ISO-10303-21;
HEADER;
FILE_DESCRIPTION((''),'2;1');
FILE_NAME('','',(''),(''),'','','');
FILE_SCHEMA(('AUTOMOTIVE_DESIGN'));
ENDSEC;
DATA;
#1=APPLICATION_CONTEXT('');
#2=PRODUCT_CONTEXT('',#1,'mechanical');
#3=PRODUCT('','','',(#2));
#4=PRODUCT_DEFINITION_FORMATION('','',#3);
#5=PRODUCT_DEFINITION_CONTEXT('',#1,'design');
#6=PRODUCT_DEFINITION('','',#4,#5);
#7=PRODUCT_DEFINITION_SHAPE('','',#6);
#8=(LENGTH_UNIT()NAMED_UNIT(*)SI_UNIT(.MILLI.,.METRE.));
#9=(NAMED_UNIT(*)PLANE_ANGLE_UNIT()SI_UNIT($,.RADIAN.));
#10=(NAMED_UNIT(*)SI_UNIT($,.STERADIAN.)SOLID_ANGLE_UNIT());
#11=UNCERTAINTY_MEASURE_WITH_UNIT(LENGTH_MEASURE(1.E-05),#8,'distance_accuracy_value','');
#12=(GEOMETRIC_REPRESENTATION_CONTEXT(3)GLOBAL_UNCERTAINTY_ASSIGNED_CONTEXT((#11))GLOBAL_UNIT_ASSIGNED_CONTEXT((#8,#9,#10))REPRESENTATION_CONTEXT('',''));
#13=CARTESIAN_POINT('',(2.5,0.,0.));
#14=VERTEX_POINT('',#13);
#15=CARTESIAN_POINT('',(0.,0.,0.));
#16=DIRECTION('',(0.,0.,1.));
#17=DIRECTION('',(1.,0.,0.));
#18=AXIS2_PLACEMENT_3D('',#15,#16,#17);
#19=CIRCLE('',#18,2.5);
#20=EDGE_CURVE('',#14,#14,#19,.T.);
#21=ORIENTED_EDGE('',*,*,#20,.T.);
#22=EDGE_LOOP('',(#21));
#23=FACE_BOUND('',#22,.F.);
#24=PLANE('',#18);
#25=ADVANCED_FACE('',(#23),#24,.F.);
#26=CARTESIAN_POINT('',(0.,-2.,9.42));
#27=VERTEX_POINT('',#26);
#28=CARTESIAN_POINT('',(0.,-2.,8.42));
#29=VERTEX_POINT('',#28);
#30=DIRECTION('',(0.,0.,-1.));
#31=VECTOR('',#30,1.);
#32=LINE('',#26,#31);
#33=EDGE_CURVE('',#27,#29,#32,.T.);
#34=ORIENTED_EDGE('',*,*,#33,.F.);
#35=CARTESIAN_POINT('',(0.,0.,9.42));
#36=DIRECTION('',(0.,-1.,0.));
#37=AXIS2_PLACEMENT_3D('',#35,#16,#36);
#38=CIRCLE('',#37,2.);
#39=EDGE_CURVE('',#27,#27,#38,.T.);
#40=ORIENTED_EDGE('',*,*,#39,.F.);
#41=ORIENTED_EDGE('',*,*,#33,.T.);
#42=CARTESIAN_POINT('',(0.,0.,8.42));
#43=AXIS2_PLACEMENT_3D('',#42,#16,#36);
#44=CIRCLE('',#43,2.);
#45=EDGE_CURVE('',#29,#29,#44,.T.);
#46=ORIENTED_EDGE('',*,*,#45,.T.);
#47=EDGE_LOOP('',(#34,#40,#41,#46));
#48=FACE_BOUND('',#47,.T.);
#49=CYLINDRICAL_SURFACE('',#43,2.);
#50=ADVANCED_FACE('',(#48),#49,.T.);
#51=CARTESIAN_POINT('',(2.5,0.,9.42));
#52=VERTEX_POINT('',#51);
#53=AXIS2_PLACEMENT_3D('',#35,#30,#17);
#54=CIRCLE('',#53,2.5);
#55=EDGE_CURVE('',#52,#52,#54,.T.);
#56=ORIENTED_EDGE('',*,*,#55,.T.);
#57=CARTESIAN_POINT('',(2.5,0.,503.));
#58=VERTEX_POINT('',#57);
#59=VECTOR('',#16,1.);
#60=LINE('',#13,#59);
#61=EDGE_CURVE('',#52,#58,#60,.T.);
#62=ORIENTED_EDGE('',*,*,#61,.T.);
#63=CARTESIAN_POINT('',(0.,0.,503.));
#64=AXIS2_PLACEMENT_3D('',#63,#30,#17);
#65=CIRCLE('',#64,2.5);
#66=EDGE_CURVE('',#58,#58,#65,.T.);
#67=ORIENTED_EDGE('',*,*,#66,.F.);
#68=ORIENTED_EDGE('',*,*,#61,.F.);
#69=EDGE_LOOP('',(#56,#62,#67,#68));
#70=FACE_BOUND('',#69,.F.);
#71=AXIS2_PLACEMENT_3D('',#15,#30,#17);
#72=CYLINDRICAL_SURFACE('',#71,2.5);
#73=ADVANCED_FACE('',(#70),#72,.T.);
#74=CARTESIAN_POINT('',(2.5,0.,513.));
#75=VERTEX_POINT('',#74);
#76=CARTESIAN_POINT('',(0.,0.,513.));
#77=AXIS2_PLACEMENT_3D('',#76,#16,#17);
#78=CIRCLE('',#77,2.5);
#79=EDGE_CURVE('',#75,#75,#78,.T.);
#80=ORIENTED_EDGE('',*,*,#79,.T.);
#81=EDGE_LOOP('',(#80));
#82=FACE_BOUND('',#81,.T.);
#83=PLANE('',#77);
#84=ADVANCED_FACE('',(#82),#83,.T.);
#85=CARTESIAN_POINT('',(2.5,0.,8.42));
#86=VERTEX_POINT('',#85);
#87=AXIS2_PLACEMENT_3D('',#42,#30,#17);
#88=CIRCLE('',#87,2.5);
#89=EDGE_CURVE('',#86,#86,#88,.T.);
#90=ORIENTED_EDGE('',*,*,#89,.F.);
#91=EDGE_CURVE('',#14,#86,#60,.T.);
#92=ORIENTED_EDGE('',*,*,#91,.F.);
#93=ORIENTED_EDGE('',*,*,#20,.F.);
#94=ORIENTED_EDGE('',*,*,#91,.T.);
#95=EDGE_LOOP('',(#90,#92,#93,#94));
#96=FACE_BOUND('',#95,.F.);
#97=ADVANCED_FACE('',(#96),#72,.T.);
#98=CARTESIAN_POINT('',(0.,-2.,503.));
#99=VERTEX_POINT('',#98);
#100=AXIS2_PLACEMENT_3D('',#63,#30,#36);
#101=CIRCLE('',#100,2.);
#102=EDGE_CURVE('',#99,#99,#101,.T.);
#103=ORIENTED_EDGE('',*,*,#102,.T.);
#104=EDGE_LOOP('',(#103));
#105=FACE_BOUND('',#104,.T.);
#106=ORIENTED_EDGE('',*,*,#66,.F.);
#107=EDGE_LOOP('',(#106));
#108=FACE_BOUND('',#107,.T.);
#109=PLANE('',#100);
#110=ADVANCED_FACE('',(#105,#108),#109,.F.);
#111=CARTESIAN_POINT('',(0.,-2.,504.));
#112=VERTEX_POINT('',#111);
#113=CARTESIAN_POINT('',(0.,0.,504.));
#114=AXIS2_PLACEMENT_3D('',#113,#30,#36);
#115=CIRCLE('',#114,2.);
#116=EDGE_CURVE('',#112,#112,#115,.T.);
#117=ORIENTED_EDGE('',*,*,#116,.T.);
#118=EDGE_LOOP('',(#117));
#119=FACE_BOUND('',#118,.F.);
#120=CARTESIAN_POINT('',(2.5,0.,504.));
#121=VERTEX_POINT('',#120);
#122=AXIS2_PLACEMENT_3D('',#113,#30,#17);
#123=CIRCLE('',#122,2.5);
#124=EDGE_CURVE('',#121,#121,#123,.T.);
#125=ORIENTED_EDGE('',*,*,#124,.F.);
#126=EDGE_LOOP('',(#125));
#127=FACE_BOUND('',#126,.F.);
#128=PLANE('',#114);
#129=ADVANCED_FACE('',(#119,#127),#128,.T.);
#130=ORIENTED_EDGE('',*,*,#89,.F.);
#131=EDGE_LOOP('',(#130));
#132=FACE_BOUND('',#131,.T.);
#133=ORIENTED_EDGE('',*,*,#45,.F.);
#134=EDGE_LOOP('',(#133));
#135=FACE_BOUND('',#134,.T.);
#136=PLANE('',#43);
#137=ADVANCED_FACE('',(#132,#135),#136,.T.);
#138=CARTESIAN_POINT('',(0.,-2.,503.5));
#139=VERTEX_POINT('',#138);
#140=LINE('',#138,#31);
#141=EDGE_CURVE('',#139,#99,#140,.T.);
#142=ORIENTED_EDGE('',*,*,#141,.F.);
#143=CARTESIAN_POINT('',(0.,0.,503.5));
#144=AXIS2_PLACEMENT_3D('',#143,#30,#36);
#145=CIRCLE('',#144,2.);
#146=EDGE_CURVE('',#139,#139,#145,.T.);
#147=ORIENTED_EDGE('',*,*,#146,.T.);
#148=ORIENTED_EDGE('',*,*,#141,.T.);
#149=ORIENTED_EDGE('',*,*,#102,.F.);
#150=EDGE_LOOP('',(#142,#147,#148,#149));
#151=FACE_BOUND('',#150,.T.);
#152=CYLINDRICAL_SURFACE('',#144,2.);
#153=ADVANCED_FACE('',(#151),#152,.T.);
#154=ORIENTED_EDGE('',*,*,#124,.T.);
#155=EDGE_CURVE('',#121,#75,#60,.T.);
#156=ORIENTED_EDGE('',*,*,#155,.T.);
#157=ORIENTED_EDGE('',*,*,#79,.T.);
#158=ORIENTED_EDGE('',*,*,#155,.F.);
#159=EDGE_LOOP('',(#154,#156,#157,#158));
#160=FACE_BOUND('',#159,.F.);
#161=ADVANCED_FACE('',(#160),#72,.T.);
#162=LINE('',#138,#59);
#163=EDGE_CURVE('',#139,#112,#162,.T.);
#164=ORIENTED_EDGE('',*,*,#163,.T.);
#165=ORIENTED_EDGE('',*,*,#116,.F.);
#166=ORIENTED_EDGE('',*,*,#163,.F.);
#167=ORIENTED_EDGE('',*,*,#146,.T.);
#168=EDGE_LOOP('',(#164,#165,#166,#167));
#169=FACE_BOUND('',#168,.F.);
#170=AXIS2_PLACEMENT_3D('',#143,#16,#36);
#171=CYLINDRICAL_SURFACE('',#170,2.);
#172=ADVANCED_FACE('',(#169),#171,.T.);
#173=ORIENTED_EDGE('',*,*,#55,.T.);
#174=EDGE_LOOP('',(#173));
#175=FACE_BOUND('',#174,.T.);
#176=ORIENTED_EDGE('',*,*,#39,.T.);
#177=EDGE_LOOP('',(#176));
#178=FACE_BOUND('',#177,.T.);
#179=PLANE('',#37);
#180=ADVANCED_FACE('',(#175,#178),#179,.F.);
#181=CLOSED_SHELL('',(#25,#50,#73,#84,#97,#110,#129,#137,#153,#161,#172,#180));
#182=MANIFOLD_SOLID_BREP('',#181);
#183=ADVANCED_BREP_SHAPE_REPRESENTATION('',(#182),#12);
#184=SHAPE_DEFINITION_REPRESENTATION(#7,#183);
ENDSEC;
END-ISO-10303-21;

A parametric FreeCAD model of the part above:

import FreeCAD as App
import Part
import Sketcher
Q = App.Units.Quantity


def add_polygon(sketch, points):
    """Adds a closed chain of lines whose ends are joined by coincident constraints."""
    first, n = sketch.GeometryCount, len(points)
    for a, b in zip(points, points[1:] + points[:1]):
        sketch.addGeometry(Part.LineSegment(App.Vector(*a, 0), App.Vector(*b, 0)), False)
    for i in range(n):
        sketch.addConstraint(Sketcher.Constraint("Coincident", first + i, 2, first + (i + 1) % n, 1))

doc = App.newDocument("Part")
params = doc.addObject("Spreadsheet::Sheet", "Params")
for row, (alias, value) in enumerate([
    ("sketch1_diameter", "5 mm"),
    ("pad1_length", "513 mm"),
    ("sketch2_height", "1 mm"),
    ("sketch2_width", "0.5 mm"),
    ("groove_angle", "360 deg"),
    ("sketch3_width", "0.5 mm"),
    ("sketch3_height", "1 mm"),
    ("groove2_angle", "360 deg"),
], start=1):
    params.set(f"A{row}", alias)
    params.set(f"B{row}", "=" + value)
    params.setAlias(f"B{row}", alias)

body = doc.addObject("PartDesign::Body", "Body")

# Sketch on XY plane
sketch1 = doc.addObject("Sketcher::SketchObject", "Sketch")
body.addObject(sketch1)
sketch1.AttachmentSupport = (doc.XY_Plane, [""])
sketch1.MapMode = "FlatFace"
sketch1.addGeometry(Part.Circle(App.Vector(0, 0, 0), App.Vector(0, 0, 1), 2.5), False)
sketch1.addConstraint(Sketcher.Constraint("Coincident", 0, 3, -1, 1))
sketch1.addConstraint(Sketcher.Constraint("Diameter", 0, Q("5 mm")))
sketch1.setExpression("Constraints[1]", "Params.sketch1_diameter")
pad1 = doc.addObject("PartDesign::Pad", "Pad")
body.addObject(pad1)
pad1.Profile = sketch1
pad1.setExpression("Length", "Params.pad1_length")

# Sketch on YZ plane
sketch2 = doc.addObject("Sketcher::SketchObject", "Sketch001")
body.addObject(sketch2)
sketch2.AttachmentSupport = (doc.YZ_Plane, [""])
sketch2.MapMode = "FlatFace"
add_polygon(sketch2, [(-2, 8.4), (-2, 9.4), (-2.5, 9.4), (-2.5, 8.4)])  # lines 0-3
sketch2.addConstraint(Sketcher.Constraint("Vertical", 0))
sketch2.addConstraint(Sketcher.Constraint("Horizontal", 1))
sketch2.addConstraint(Sketcher.Constraint("Vertical", 2))
sketch2.addConstraint(Sketcher.Constraint("Horizontal", 3))
sketch2.addConstraint(Sketcher.Constraint("DistanceY", 0, 1, 0, 2, Q("1 mm")))
sketch2.addConstraint(Sketcher.Constraint("DistanceX", 1, 2, 1, 1, Q("0.5 mm")))
sketch2.addConstraint(Sketcher.Constraint("DistanceX", 0, 2, -1, 1, Q("2 mm")))
sketch2.addConstraint(Sketcher.Constraint("DistanceY", -1, 1, 0, 2, Q("9.42 mm")))
sketch2.setExpression("Constraints[8]", "Params.sketch2_height")
sketch2.setExpression("Constraints[9]", "Params.sketch2_width")
groove = doc.addObject("PartDesign::Groove", "Groove")
body.addObject(groove)
groove.Profile = sketch2
groove.ReferenceAxis = (sketch2, ["V_Axis"])
groove.setExpression("Angle", "Params.groove_angle")

# Sketch on YZ plane
sketch3 = doc.addObject("Sketcher::SketchObject", "Sketch002")
body.addObject(sketch3)
sketch3.AttachmentSupport = (doc.YZ_Plane, [""])
sketch3.MapMode = "FlatFace"
add_polygon(sketch3, [(-2, 504), (-2.5, 504), (-2.5, 503), (-2, 503)])  # lines 0-3
sketch3.addConstraint(Sketcher.Constraint("Horizontal", 0))
sketch3.addConstraint(Sketcher.Constraint("Vertical", 1))
sketch3.addConstraint(Sketcher.Constraint("Horizontal", 2))
sketch3.addConstraint(Sketcher.Constraint("Vertical", 3))
sketch3.addConstraint(Sketcher.Constraint("DistanceX", 0, 2, 0, 1, Q("0.5 mm")))
sketch3.addConstraint(Sketcher.Constraint("DistanceY", 1, 2, 1, 1, Q("1 mm")))
sketch3.addConstraint(Sketcher.Constraint("DistanceY", -1, 1, 0, 2, Q("504 mm")))
sketch3.addConstraint(Sketcher.Constraint("DistanceX", 2, 2, -1, 1, Q("2 mm")))
sketch3.setExpression("Constraints[8]", "Params.sketch3_width")
sketch3.setExpression("Constraints[9]", "Params.sketch3_height")
groove2 = doc.addObject("PartDesign::Groove", "Groove001")
body.addObject(groove2)
groove2.Profile = sketch3
groove2.ReferenceAxis = (sketch3, ["V_Axis"])
groove2.setExpression("Angle", "Params.groove2_angle")

doc.recompute()
